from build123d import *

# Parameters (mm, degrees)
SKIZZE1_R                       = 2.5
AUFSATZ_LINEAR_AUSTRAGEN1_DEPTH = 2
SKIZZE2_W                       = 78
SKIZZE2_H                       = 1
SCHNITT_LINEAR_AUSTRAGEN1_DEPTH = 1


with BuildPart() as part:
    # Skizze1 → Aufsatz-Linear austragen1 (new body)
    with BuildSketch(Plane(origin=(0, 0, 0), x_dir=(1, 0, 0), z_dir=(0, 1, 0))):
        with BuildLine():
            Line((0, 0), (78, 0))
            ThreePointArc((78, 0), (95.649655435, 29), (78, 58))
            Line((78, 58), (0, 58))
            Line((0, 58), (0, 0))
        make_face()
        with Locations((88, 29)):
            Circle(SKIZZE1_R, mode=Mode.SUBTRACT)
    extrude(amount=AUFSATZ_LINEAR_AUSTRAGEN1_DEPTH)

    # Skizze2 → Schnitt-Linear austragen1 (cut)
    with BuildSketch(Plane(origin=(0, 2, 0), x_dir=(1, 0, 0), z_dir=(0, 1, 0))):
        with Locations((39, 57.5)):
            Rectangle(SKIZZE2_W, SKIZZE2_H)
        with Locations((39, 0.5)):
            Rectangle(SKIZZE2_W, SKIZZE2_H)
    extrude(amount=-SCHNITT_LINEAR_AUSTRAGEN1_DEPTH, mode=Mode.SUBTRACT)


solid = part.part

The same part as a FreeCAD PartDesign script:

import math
import FreeCAD as App
import Part
import Sketcher
Q = App.Units.Quantity

doc = App.newDocument("Part")
params = doc.addObject("Spreadsheet::Sheet", "Params")
for row, (alias, value) in enumerate([
    ("sketch1_diameter", "5 mm"),
    ("sketch1_width", "78 mm"),
    ("sketch1_height", "58 mm"),
    ("pad1_length", "2 mm"),
    ("sketch2_width", "78 mm"),
    ("sketch2_height", "1 mm"),
    ("pocket1_length", "1 mm"),
], start=1):
    params.set(f"A{row}", alias)
    params.set(f"B{row}", "=" + value)
    params.setAlias(f"B{row}", alias)

body = doc.addObject("PartDesign::Body", "Body")

# Sketch on XZ plane
sketch1 = body.newObject("Sketcher::SketchObject", "Sketch")
sketch1.AttachmentSupport = (doc.getObject("XZ_Plane"), [""])
sketch1.MapMode = "FlatFace"
sketch1.addGeometry([
    Part.LineSegment(App.Vector(0, 0, 0), App.Vector(78, 0, 0)),  # 0
    Part.ArcOfCircle(Part.Circle(App.Vector(63, -29, 0), App.Vector(0, 0, 1), 32.6), math.radians(-63), math.radians(63)),  # 1
    Part.LineSegment(App.Vector(78, -58, 0), App.Vector(0, -58, 0)),  # 2
    Part.LineSegment(App.Vector(0, -58, 0), App.Vector(0, 0, 0)),  # 3
    Part.Circle(App.Vector(88, -29, 0), App.Vector(0, 0, 1), 2.5),  # 4
], False)
sketch1.addConstraint([
    Sketcher.Constraint("Coincident", 0, 2, 1, 2),
    Sketcher.Constraint("Coincident", 1, 1, 2, 1),
    Sketcher.Constraint("Coincident", 2, 2, 3, 1),
    Sketcher.Constraint("Coincident", 3, 2, 0, 1),
    Sketcher.Constraint("Horizontal", 0),
    Sketcher.Constraint("Horizontal", 2),
    Sketcher.Constraint("Vertical", 3),
    Sketcher.Constraint("Coincident", 3, 2, -1, 1),
    Sketcher.Constraint("Horizontal", 1, 3, 4, 3),
    Sketcher.Constraint("Vertical", 0, 2, 1, 1),
    Sketcher.Constraint("Diameter", 4, Q("5 mm")),
    Sketcher.Constraint("DistanceX", 0, 1, 0, 2, Q("78 mm")),
    Sketcher.Constraint("DistanceY", 3, 1, 3, 2, Q("58 mm")),
    Sketcher.Constraint("DistanceX", -1, 1, 1, 3, Q("63 mm")),
    Sketcher.Constraint("DistanceX", -1, 1, 4, 3, Q("88 mm")),
])
sketch1.setExpression("Constraints[10]", "Params.sketch1_diameter")
sketch1.setExpression("Constraints[11]", "Params.sketch1_width")
sketch1.setExpression("Constraints[12]", "Params.sketch1_height")
pad1 = body.newObject("PartDesign::Pad", "Pad")
pad1.Profile = sketch1
pad1.setExpression("Length", "Params.pad1_length")
pad1.Reversed = True

# Sketch on XZ plane
sketch2 = body.newObject("Sketcher::SketchObject", "Sketch001")
sketch2.AttachmentSupport = (doc.getObject("XZ_Plane"), [""])
sketch2.MapMode = "FlatFace"
sketch2.AttachmentOffset = App.Placement(App.Vector(0, 0, -2), App.Rotation())
sketch2.addGeometry([
    Part.LineSegment(App.Vector(0, -58, 0), App.Vector(0, -57, 0)),  # 0
    Part.LineSegment(App.Vector(0, -57, 0), App.Vector(78, -57, 0)),  # 1
    Part.LineSegment(App.Vector(78, -57, 0), App.Vector(78, -58, 0)),  # 2
    Part.LineSegment(App.Vector(78, -58, 0), App.Vector(0, -58, 0)),  # 3
    Part.LineSegment(App.Vector(0, -1, 0), App.Vector(0, 0, 0)),  # 4
    Part.LineSegment(App.Vector(0, 0, 0), App.Vector(78, 0, 0)),  # 5
    Part.LineSegment(App.Vector(78, 0, 0), App.Vector(78, -1, 0)),  # 6
    Part.LineSegment(App.Vector(78, -1, 0), App.Vector(0, -1, 0)),  # 7
], False)
sketch2.addConstraint([
    Sketcher.Constraint("Coincident", 0, 2, 1, 1),
    Sketcher.Constraint("Coincident", 1, 2, 2, 1),
    Sketcher.Constraint("Coincident", 2, 2, 3, 1),
    Sketcher.Constraint("Coincident", 3, 2, 0, 1),
    Sketcher.Constraint("Coincident", 4, 2, 5, 1),
    Sketcher.Constraint("Coincident", 5, 2, 6, 1),
    Sketcher.Constraint("Coincident", 6, 2, 7, 1),
    Sketcher.Constraint("Coincident", 7, 2, 4, 1),
    Sketcher.Constraint("Vertical", 0),
    Sketcher.Constraint("Horizontal", 1),
    Sketcher.Constraint("Vertical", 2),
    Sketcher.Constraint("Horizontal", 3),
    Sketcher.Constraint("Vertical", 4),
    Sketcher.Constraint("Horizontal", 5),
    Sketcher.Constraint("Vertical", 6),
    Sketcher.Constraint("Horizontal", 7),
    Sketcher.Constraint("Coincident", 4, 2, -1, 1),
    Sketcher.Constraint("PointOnObject", 0, 2, -2),
    Sketcher.Constraint("Vertical", 2, 2, 5, 2),
    Sketcher.Constraint("Equal", 2, 4),
    Sketcher.Constraint("DistanceX", 1, 1, 1, 2, Q("78 mm")),
    Sketcher.Constraint("DistanceY", 0, 1, 0, 2, Q("1 mm")),
    Sketcher.Constraint("DistanceY", 0, 2, -1, 1, Q("57 mm")),
])
sketch2.setExpression("Constraints[20]", "Params.sketch2_width")
sketch2.setExpression("Constraints[21]", "Params.sketch2_height")
pocket1 = body.newObject("PartDesign::Pocket", "Pocket")
pocket1.Profile = sketch2
pocket1.setExpression("Length", "Params.pocket1_length")
pocket1.Reversed = True

doc.recompute()
